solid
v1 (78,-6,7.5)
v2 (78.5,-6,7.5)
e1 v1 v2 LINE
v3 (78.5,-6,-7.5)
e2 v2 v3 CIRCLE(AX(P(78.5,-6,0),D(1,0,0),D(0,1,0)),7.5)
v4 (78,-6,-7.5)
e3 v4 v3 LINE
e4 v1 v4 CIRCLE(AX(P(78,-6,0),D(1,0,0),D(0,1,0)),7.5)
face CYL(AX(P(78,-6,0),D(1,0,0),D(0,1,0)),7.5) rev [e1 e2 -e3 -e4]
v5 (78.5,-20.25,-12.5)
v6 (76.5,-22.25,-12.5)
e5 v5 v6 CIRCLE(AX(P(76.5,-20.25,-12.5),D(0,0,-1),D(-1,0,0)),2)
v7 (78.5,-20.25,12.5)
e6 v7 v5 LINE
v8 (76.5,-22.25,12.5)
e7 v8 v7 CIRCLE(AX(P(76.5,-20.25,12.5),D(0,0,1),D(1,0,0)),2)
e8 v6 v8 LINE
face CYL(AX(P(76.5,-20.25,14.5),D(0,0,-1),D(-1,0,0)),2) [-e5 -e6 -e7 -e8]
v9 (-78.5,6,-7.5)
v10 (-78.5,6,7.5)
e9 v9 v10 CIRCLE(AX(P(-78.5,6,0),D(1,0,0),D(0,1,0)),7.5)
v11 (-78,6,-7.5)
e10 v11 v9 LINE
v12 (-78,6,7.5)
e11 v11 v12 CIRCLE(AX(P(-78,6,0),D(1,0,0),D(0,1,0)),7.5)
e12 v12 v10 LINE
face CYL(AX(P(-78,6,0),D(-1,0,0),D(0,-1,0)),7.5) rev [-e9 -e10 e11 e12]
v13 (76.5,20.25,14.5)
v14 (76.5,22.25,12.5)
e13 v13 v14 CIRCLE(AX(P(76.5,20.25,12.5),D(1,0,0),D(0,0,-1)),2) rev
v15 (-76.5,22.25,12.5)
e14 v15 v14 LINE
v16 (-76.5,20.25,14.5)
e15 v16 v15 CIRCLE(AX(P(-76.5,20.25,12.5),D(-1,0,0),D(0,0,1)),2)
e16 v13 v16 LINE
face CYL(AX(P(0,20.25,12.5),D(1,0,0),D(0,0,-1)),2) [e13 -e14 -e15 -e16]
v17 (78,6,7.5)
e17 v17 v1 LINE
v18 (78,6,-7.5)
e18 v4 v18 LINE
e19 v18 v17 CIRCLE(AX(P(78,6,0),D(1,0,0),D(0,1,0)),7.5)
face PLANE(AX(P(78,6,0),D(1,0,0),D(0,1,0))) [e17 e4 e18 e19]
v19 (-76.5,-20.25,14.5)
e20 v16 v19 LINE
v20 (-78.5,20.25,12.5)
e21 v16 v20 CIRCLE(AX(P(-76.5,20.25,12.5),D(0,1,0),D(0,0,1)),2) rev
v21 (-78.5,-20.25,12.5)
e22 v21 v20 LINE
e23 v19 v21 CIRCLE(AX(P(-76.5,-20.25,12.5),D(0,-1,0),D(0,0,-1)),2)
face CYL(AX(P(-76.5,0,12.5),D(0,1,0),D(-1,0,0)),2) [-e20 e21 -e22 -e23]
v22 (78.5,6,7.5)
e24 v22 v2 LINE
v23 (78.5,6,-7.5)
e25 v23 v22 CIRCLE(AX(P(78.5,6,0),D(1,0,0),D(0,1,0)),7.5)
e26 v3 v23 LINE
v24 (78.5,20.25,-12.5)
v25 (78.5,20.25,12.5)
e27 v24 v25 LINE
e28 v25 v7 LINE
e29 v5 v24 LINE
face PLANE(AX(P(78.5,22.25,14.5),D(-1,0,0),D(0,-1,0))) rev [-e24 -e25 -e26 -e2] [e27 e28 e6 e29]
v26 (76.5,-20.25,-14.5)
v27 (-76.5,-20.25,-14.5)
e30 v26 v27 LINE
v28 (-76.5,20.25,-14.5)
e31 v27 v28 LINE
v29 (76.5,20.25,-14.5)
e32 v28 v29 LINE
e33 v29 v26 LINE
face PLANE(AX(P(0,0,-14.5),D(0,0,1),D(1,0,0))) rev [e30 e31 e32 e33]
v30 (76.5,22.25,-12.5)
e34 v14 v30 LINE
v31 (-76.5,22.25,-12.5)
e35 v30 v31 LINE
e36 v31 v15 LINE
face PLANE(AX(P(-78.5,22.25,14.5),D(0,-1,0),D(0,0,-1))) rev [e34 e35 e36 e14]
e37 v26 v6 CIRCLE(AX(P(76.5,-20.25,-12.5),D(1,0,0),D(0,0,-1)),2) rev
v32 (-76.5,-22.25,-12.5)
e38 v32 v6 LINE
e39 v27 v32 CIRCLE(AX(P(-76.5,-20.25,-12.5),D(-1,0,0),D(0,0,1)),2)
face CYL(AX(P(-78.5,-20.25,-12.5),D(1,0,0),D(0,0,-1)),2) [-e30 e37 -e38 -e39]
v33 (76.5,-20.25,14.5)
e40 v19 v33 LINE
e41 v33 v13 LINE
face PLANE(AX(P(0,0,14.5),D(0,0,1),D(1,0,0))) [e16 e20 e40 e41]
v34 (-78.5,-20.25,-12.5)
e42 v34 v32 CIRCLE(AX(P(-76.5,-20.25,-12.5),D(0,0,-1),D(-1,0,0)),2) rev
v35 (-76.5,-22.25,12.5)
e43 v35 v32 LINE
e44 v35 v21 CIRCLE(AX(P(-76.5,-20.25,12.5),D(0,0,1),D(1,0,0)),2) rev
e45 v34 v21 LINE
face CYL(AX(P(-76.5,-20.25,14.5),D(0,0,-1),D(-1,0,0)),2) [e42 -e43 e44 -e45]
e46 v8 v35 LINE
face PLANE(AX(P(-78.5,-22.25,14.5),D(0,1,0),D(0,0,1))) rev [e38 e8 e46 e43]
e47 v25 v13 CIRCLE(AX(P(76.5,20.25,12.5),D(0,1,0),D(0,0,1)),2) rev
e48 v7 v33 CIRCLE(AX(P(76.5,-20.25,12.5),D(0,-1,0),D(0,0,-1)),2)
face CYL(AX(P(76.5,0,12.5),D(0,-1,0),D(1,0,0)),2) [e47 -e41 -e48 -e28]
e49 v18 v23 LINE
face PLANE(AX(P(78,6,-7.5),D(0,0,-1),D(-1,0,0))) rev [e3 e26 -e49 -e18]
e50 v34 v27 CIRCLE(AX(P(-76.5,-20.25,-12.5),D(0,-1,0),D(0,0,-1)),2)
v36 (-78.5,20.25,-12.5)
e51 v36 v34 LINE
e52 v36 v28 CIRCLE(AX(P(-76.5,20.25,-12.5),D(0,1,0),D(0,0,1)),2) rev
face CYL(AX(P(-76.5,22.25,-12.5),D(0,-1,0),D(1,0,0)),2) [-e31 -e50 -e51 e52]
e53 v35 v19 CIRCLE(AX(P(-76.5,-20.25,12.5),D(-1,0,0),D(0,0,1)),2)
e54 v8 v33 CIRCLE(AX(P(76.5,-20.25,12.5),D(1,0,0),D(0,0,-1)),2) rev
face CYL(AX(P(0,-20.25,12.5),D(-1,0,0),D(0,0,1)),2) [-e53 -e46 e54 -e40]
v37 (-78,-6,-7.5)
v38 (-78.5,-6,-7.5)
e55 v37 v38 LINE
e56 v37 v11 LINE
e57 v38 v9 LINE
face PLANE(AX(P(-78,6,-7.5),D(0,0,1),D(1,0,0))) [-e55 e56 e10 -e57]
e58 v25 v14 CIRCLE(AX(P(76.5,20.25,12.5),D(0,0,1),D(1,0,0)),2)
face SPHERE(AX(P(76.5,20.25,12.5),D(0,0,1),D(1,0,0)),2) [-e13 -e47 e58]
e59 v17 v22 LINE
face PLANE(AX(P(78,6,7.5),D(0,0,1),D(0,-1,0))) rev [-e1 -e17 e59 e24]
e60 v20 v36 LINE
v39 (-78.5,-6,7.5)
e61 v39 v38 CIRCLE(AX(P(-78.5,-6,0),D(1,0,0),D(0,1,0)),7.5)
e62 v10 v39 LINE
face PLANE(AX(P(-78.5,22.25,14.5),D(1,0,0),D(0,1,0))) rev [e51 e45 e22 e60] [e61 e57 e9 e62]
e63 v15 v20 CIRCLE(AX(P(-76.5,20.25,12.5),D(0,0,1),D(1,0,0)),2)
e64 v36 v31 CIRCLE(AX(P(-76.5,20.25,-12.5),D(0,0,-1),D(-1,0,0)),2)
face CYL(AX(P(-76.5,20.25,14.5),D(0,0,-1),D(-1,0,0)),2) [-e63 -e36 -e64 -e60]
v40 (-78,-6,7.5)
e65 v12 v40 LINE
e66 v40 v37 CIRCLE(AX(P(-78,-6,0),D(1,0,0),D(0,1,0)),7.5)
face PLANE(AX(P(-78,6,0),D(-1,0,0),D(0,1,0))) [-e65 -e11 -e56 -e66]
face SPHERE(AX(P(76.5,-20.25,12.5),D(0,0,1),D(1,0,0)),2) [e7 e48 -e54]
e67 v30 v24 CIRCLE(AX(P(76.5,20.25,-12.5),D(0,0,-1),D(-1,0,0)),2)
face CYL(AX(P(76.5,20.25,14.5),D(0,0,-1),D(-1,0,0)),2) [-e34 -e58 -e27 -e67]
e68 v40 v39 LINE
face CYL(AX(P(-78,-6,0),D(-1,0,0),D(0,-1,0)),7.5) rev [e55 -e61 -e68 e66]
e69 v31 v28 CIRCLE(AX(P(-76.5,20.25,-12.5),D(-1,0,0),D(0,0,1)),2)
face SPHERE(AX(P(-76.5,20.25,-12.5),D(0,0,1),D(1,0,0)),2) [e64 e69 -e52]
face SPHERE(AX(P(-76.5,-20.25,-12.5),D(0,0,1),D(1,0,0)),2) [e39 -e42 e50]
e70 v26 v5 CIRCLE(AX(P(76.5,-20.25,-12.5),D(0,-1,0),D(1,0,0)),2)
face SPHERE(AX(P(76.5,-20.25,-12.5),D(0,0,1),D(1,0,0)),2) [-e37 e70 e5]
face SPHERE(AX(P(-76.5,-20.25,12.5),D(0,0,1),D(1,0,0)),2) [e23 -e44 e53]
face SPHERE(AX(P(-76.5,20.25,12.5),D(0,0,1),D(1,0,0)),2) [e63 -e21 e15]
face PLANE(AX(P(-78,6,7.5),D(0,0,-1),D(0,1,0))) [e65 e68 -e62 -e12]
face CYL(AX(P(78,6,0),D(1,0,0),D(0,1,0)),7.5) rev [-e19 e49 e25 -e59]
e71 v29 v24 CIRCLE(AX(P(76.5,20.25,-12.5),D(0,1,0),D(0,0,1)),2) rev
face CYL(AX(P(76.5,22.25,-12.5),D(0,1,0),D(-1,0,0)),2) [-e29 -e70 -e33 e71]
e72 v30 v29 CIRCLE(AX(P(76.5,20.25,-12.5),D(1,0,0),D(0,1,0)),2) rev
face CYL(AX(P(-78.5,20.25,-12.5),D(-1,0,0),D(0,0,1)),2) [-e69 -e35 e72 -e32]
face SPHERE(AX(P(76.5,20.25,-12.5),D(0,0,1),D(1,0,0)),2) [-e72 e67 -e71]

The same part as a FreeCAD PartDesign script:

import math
import FreeCAD as App
import Part
import Sketcher
from FreeCAD import Vector
Q = App.Units.Quantity


def edges_at(feature, points):
    """Names of the edges that pass closest to the given points."""
    edges = feature.Shape.Edges
    near = lambda p: min(range(len(edges)), key=lambda i: edges[i].distToShape(Part.Vertex(*p))[0])
    return sorted({f"Edge{near(p) + 1}" for p in points})

doc = App.newDocument("Part")
body = doc.addObject("PartDesign::Body", "Body")

# Sketch on XY plane
sketch1 = doc.addObject("Sketcher::SketchObject", "Sketch")
body.addObject(sketch1)
sketch1.AttachmentSupport = (doc.XY_Plane, [""])
sketch1.MapMode = "FlatFace"
sketch1.addGeometry(Part.LineSegment(Vector(-78, 22, 0), Vector(-78, -22, 0)), False)
sketch1.addGeometry(Part.LineSegment(Vector(-78, -22, 0), Vector(78, -22, 0)), False)
sketch1.addGeometry(Part.LineSegment(Vector(78, -22, 0), Vector(78, 22, 0)), False)
sketch1.addGeometry(Part.LineSegment(Vector(78, 22, 0), Vector(-78, 22, 0)), False)
sketch1.addConstraint(Sketcher.Constraint("Coincident", 0, 2, 1, 1))
sketch1.addConstraint(Sketcher.Constraint("Coincident", 1, 2, 2, 1))
sketch1.addConstraint(Sketcher.Constraint("Coincident", 2, 2, 3, 1))
sketch1.addConstraint(Sketcher.Constraint("Coincident", 3, 2, 0, 1))
sketch1.addConstraint(Sketcher.Constraint("Vertical", 0))
sketch1.addConstraint(Sketcher.Constraint("Horizontal", 1))
sketch1.addConstraint(Sketcher.Constraint("Vertical", 2))
sketch1.addConstraint(Sketcher.Constraint("Horizontal", 3))
sketch1.addConstraint(Sketcher.Constraint("Symmetric", 0, 2, 2, 2, -1, 1))
sketch1.addConstraint(Sketcher.Constraint("DistanceX", 1, 1, 1, 2, Q("157 mm")))
sketch1.addConstraint(Sketcher.Constraint("DistanceY", 0, 2, 0, 1, Q("44.5 mm")))
pad1 = doc.addObject("PartDesign::Pad", "Pad")
body.addObject(pad1)
pad1.Profile = sketch1
pad1.Length = 29
pad1.Midplane = True

# Sketch on YZ plane
sketch2 = doc.addObject("Sketcher::SketchObject", "Sketch001")
body.addObject(sketch2)
sketch2.AttachmentSupport = (doc.YZ_Plane, [""])
sketch2.MapMode = "FlatFace"
sketch2.AttachmentOffset = App.Placement(Vector(0, 0, 78.5), App.Rotation())
sketch2.addGeometry(Part.LineSegment(Vector(-6, -8, 0), Vector(6, -8, 0)), False)
sketch2.addGeometry(Part.ArcOfCircle(Part.Circle(Vector(6, 0, 0), Vector(0, 0, 1), 8), math.radians(-90), math.radians(90)), False)
sketch2.addGeometry(Part.LineSegment(Vector(6, 8, 0), Vector(-6, 8, 0)), False)
sketch2.addGeometry(Part.ArcOfCircle(Part.Circle(Vector(-6, 0, 0), Vector(0, 0, 1), 8), math.radians(90), math.radians(270)), False)
sketch2.addConstraint(Sketcher.Constraint("Tangent", 0, 2, 1, 1))
sketch2.addConstraint(Sketcher.Constraint("Tangent", 1, 2, 2, 1))
sketch2.addConstraint(Sketcher.Constraint("Tangent", 2, 2, 3, 1))
sketch2.addConstraint(Sketcher.Constraint("Tangent", 3, 2, 0, 1))
sketch2.addConstraint(Sketcher.Constraint("Horizontal", 0))
sketch2.addConstraint(Sketcher.Constraint("Horizontal", 2))
sketch2.addConstraint(Sketcher.Constraint("Symmetric", 1, 3, 3, 3, -1, 1))
sketch2.addConstraint(Sketcher.Constraint("Radius", 1, Q("7.5 mm")))
sketch2.addConstraint(Sketcher.Constraint("DistanceX", 0, 1, 0, 2, Q("12 mm")))
pocket1 = doc.addObject("PartDesign::Pocket", "Pocket")
body.addObject(pocket1)
pocket1.Profile = sketch2
pocket1.Length = 0.5
doc.recompute()

mirrored = doc.addObject("PartDesign::Mirrored", "Mirrored")
body.addObject(mirrored)
mirrored.Originals = [pocket1]
mirrored.MirrorPlane = (doc.YZ_Plane, [""])
body.Tip = mirrored
doc.recompute()

fillet = doc.addObject("PartDesign::Fillet", "Fillet")
body.addObject(fillet)
fillet.Base = (mirrored, edges_at(mirrored, [
    (-78.5, 0, 14.5),
    (0, -22.25, 14.5),
    (78.5, 0, 14.5),
    (0, -22.25, -14.5),
    (-78.5, 0, -14.5),
    (0, 22.25, -14.5),
    (78.5, 0, -14.5),
    (0, 22.25, 14.5),
    (78.5, -22.25, 0),
    (-78.5, -22.25, 0),
    (-78.5, 22.25, 0),
    (78.5, 22.25, 0),
]))
fillet.Radius = 2

doc.recompute()
